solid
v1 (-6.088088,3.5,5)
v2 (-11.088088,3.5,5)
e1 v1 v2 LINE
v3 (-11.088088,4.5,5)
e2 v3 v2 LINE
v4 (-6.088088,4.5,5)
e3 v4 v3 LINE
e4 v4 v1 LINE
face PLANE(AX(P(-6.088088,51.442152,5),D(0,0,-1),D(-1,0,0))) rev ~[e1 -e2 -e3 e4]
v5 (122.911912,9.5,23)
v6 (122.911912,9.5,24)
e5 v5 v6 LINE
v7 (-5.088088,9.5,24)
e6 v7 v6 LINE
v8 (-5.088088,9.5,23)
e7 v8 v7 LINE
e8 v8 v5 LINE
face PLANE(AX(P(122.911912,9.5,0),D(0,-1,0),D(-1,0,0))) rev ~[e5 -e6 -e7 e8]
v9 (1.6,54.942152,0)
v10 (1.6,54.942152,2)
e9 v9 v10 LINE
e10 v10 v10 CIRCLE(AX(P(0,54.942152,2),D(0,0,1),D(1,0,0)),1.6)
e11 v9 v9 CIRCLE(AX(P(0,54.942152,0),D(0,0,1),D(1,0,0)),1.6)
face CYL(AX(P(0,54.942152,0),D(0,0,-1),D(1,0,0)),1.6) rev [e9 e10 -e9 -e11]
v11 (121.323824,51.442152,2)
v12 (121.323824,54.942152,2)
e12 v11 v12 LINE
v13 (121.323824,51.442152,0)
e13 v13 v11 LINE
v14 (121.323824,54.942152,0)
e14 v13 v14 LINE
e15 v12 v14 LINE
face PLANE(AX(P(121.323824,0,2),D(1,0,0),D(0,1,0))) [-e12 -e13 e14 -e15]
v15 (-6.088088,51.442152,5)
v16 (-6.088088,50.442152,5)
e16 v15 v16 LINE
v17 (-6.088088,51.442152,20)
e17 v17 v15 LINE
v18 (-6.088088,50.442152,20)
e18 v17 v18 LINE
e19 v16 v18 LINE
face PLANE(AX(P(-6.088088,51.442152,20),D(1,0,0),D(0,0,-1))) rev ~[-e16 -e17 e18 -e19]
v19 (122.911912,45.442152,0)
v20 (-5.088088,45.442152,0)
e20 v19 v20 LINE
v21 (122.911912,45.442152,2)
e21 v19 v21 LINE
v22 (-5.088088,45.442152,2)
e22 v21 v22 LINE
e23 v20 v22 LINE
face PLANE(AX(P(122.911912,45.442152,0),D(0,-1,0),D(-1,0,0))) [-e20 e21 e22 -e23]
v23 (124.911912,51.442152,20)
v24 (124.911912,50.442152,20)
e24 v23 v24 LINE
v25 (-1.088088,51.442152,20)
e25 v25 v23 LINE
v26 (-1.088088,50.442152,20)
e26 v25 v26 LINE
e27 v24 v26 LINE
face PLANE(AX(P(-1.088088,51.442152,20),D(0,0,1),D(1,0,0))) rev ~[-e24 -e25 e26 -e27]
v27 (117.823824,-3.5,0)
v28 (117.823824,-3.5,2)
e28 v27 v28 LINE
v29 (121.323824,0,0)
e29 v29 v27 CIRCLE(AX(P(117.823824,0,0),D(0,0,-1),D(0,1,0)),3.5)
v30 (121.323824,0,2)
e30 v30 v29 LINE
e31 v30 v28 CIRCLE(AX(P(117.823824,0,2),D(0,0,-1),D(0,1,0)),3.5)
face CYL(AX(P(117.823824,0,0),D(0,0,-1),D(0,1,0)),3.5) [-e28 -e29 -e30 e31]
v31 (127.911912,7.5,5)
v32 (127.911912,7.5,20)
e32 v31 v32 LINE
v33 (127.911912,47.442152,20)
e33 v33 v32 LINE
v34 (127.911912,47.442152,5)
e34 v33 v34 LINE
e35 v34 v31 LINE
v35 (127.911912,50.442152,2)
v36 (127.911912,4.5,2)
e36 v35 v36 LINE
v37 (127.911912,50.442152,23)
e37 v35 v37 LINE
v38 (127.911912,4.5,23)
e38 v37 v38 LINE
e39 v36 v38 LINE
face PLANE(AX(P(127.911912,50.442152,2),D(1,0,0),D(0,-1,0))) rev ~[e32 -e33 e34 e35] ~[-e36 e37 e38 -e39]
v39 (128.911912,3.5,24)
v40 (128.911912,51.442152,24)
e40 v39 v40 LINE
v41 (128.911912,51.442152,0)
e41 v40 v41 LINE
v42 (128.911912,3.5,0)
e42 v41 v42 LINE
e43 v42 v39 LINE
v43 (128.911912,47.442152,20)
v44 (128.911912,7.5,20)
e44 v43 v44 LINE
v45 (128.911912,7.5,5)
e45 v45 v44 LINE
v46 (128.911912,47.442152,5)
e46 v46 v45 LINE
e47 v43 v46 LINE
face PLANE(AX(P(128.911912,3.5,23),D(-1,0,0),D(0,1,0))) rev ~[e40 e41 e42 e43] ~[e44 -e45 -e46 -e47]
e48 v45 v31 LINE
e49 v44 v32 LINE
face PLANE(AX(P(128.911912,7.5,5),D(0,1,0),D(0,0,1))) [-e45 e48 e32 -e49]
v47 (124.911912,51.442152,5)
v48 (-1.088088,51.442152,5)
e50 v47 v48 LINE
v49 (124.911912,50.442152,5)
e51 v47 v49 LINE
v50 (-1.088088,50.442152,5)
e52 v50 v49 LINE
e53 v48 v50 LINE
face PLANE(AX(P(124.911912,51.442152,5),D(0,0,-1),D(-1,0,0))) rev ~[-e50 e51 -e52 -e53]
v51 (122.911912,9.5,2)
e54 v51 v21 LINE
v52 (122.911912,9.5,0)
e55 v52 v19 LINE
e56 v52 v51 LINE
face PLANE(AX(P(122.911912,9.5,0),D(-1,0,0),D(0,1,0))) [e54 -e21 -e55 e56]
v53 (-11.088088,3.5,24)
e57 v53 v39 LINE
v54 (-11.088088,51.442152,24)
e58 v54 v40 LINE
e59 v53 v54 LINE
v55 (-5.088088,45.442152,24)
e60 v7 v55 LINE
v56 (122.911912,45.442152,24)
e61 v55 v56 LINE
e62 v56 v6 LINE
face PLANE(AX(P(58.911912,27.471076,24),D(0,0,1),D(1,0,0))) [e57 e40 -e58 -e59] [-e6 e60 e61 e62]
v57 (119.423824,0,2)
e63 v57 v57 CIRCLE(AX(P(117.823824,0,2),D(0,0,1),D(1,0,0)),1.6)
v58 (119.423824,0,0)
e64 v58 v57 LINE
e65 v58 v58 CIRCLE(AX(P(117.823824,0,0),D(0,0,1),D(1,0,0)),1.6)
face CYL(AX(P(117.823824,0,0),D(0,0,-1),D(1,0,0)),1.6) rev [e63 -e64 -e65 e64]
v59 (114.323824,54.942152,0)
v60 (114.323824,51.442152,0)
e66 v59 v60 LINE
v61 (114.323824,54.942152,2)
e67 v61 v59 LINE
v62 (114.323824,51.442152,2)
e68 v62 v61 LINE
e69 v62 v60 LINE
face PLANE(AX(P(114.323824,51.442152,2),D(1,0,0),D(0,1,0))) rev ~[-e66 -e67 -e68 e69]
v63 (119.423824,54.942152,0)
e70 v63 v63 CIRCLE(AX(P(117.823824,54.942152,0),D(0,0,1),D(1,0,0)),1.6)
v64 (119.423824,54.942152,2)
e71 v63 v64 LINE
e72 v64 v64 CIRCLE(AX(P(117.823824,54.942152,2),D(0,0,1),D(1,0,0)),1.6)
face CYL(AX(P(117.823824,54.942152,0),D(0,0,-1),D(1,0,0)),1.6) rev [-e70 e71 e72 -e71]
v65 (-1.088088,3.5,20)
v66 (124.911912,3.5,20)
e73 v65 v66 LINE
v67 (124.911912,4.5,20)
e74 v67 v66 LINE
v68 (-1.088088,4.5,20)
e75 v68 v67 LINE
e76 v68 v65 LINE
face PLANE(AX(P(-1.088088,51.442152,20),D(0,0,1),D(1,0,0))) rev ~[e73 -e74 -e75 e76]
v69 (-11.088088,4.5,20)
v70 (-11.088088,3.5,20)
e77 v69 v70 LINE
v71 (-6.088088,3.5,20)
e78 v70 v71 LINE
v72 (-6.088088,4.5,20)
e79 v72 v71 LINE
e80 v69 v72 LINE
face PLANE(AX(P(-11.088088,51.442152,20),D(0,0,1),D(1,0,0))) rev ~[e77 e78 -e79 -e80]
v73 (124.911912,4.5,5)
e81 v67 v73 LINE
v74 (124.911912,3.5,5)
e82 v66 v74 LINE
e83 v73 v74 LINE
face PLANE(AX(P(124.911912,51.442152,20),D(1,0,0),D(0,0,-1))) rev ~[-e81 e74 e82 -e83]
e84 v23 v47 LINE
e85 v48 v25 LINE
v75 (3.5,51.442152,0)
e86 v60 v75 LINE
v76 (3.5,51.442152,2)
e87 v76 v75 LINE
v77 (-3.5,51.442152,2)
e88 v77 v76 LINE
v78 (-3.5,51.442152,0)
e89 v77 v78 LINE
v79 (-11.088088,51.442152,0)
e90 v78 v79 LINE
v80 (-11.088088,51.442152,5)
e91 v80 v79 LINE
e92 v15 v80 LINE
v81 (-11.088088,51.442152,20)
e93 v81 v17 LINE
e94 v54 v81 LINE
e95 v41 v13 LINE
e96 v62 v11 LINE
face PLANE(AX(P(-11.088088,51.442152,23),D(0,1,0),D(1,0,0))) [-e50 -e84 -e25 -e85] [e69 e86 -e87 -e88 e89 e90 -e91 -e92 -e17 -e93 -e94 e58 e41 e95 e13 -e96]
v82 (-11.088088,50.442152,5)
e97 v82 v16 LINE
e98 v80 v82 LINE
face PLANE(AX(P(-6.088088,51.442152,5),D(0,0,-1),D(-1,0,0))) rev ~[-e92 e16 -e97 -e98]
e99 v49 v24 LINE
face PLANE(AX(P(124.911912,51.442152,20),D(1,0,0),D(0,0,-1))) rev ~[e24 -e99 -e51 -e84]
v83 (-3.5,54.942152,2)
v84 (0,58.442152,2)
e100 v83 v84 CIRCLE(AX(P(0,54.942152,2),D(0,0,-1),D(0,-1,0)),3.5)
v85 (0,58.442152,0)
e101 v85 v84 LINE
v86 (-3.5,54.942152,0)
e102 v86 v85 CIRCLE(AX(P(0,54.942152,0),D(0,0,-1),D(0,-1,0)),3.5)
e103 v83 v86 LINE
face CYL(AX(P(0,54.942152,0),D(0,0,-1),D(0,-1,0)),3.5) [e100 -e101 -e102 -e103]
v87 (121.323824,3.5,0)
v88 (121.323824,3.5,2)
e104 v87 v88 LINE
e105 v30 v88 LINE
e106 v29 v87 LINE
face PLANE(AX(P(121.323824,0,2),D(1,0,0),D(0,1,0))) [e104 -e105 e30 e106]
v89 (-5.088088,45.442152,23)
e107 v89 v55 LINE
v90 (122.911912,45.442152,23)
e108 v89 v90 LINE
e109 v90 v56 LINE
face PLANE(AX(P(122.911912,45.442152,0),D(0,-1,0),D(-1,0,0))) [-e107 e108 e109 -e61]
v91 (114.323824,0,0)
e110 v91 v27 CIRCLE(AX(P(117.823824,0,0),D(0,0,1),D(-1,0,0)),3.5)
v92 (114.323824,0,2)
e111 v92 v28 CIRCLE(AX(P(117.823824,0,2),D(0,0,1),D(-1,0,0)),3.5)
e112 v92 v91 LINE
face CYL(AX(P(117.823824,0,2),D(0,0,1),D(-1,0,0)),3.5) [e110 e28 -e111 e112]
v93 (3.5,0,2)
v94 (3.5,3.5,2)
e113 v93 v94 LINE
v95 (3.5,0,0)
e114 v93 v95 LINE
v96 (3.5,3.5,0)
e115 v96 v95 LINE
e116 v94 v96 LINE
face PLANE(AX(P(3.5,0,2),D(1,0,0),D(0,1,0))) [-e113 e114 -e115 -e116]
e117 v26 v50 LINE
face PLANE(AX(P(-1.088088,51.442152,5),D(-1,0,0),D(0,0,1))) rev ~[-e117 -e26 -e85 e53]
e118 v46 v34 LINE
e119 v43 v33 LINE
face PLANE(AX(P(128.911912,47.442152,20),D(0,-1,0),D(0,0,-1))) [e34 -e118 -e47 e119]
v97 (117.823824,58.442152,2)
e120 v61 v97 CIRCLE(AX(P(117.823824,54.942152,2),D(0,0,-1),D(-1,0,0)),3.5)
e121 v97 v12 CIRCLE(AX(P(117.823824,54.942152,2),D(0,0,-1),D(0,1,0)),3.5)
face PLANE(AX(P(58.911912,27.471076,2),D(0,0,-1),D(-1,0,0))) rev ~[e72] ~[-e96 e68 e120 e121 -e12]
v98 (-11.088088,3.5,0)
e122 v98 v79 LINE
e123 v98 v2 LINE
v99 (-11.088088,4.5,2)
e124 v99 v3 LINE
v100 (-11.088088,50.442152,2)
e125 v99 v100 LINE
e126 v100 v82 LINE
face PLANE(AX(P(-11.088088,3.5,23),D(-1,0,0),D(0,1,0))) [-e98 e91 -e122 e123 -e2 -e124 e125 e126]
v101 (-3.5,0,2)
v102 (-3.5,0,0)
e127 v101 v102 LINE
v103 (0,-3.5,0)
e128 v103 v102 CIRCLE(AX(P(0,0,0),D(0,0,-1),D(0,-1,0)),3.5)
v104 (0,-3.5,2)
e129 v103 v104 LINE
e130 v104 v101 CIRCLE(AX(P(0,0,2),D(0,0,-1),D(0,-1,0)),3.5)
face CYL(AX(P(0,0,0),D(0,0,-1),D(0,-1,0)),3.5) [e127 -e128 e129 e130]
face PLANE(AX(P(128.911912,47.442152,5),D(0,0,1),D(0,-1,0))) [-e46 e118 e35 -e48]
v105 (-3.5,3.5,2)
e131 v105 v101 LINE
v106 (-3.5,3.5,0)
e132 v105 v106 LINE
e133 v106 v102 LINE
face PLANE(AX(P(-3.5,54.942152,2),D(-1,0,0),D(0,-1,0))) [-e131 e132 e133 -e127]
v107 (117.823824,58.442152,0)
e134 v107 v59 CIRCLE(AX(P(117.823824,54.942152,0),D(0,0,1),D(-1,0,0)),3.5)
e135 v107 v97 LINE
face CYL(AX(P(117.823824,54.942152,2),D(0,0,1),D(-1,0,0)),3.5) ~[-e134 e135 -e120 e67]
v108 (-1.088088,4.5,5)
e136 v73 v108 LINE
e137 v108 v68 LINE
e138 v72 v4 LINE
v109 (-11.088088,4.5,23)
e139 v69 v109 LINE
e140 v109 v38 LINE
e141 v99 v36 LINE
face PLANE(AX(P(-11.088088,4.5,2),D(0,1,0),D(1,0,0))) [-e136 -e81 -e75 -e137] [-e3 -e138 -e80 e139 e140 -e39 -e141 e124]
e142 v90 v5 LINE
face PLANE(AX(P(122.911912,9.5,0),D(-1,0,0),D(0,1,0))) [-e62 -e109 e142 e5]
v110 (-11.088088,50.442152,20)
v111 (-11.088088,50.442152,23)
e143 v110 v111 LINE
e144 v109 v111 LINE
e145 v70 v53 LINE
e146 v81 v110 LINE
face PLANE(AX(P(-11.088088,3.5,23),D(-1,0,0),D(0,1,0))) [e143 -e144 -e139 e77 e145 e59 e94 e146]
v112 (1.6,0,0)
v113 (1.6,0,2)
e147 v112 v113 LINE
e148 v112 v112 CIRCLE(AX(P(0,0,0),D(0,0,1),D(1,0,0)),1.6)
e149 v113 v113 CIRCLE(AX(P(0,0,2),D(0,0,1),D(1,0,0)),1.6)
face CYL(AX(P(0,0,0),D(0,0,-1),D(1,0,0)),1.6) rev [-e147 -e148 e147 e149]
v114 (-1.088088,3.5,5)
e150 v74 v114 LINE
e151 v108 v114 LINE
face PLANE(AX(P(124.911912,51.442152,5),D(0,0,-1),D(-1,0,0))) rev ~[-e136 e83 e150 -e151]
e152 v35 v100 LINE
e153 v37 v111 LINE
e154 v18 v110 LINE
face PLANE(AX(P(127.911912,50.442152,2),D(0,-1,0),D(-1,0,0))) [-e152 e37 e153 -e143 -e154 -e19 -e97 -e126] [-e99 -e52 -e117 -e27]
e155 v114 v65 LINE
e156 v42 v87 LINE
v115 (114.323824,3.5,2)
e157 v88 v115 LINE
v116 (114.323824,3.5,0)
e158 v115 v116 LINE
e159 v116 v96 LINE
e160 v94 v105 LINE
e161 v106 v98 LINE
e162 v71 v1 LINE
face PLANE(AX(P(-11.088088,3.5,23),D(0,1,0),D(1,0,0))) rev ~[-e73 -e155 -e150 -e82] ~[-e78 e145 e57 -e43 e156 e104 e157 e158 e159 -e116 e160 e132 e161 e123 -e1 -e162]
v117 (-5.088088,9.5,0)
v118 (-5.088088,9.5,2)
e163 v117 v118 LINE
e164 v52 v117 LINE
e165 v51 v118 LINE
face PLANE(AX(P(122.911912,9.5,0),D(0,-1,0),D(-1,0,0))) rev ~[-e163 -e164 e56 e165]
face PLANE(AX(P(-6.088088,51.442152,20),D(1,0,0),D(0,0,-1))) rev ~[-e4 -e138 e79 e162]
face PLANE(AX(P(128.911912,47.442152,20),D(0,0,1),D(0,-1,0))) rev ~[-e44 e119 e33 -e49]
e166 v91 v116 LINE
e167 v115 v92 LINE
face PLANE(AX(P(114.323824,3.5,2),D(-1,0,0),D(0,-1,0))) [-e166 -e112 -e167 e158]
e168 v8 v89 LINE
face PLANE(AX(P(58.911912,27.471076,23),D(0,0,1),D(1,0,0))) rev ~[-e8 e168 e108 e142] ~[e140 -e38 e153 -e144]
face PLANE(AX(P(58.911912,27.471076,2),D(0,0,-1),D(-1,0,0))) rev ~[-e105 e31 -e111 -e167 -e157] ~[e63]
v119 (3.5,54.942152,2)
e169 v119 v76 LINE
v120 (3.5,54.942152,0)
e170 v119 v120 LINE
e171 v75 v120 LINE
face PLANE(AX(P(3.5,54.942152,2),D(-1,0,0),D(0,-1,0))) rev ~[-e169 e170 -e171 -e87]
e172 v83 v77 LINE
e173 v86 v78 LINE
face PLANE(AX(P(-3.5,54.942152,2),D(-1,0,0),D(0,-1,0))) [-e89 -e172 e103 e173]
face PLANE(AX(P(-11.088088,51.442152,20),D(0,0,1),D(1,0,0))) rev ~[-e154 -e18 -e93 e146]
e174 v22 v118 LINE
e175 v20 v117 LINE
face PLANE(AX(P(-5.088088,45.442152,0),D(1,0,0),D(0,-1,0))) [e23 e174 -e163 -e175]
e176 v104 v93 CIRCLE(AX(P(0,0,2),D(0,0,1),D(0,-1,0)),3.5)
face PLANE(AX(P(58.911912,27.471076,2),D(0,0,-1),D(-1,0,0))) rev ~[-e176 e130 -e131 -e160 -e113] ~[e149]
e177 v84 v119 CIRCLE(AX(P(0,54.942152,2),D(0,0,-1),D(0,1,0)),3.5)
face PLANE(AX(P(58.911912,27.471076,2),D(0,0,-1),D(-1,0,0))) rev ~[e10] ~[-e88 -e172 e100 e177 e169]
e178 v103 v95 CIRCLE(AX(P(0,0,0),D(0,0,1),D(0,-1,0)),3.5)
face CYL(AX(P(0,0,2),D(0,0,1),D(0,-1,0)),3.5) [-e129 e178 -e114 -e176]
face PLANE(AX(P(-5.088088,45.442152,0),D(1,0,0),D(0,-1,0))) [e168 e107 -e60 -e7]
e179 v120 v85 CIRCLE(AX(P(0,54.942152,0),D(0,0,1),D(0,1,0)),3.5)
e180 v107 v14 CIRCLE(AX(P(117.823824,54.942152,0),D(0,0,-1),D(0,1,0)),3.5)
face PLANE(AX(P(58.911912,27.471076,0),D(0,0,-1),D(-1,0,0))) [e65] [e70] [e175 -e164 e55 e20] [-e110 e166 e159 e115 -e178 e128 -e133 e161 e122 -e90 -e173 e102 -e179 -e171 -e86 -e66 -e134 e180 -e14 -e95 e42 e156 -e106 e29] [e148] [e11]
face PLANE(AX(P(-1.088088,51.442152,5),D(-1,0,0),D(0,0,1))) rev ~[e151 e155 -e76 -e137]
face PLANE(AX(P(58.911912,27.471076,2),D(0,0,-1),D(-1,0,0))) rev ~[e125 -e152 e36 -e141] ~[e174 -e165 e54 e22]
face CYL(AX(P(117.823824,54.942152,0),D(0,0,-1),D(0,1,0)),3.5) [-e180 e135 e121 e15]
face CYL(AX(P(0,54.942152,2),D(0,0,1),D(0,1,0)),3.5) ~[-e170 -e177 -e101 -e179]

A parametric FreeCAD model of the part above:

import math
import FreeCAD as App
import Part
import Sketcher
from FreeCAD import Vector


def edges_at(feature, points):
    """Names of the edges that pass closest to the given points."""
    edges = feature.Shape.Edges
    near = lambda p: min(range(len(edges)), key=lambda i: edges[i].distToShape(Part.Vertex(*p))[0])
    return sorted({f"Edge{near(p) + 1}" for p in points})


def add_polygon(sketch, points):
    """Adds a closed chain of lines whose ends are joined by coincident constraints."""
    first, n = sketch.GeometryCount, len(points)
    for a, b in zip(points, points[1:] + points[:1]):
        sketch.addGeometry(Part.LineSegment(App.Vector(*a, 0), App.Vector(*b, 0)), False)
    for i in range(n):
        sketch.addConstraint(Sketcher.Constraint("Coincident", first + i, 2, first + (i + 1) % n, 1))

doc = App.newDocument("Part")
body = doc.addObject("PartDesign::Body", "Body")

sketch1 = body.newObject("Sketcher::SketchObject", "Sketch")
sketch1.AttachmentSupport = (doc.getObject("XY_Plane"), [""])
sketch1.MapMode = "FlatFace"
sketch1.addGeometry(Part.LineSegment(Vector(37.911912, 3.5, 0), Vector(0, 3.5, 0)), False)
sketch1.addGeometry(Part.ArcOfCircle(Part.Circle(Vector(0, 0, 0), Vector(0, 0, 1), 3.5), math.radians(90), math.radians(270)), False)
sketch1.addGeometry(Part.LineSegment(Vector(0, -3.5, 0), Vector(45.911912, -3.5, 0)), False)
sketch1.addGeometry(Part.LineSegment(Vector(45.911912, -3.5, 0), Vector(45.911912, 5.971076, 0)), False)
sketch1.addGeometry(Part.LineSegment(Vector(45.911912, 5.971076, 0), Vector(71.911912, 5.971076, 0)), False)
sketch1.addGeometry(Part.LineSegment(Vector(71.911912, 5.971076, 0), Vector(71.911912, -3.5, 0)), False)
sketch1.addGeometry(Part.LineSegment(Vector(71.911912, -3.5, 0), Vector(117.823824, -3.5, 0)), False)
sketch1.addGeometry(Part.ArcOfCircle(Part.Circle(Vector(117.823824, 0, 0), Vector(0, 0, 1), 3.5), math.radians(-90), math.radians(90)), False)
sketch1.addGeometry(Part.LineSegment(Vector(117.823824, 3.5, 0), Vector(79.911912, 3.5, 0)), False)
sketch1.addGeometry(Part.LineSegment(Vector(79.911912, 3.5, 0), Vector(79.911912, 51.442152, 0)), False)
sketch1.addGeometry(Part.LineSegment(Vector(79.911912, 51.442152, 0), Vector(117.823824, 51.442152, 0)), False)
sketch1.addGeometry(Part.ArcOfCircle(Part.Circle(Vector(117.823824, 54.942152, 0), Vector(0, 0, 1), 3.5), math.radians(-90), math.radians(90)), False)
sketch1.addGeometry(Part.LineSegment(Vector(117.823824, 58.442152, 0), Vector(71.911912, 58.442152, 0)), False)
sketch1.addGeometry(Part.LineSegment(Vector(71.911912, 58.442152, 0), Vector(71.911912, 48.971076, 0)), False)
sketch1.addGeometry(Part.LineSegment(Vector(71.911912, 48.971076, 0), Vector(45.911912, 48.971076, 0)), False)
sketch1.addGeometry(Part.LineSegment(Vector(45.911912, 48.971076, 0), Vector(45.911912, 58.442152, 0)), False)
sketch1.addGeometry(Part.LineSegment(Vector(45.911912, 58.442152, 0), Vector(0, 58.442152, 0)), False)
sketch1.addGeometry(Part.ArcOfCircle(Part.Circle(Vector(0, 54.942152, 0), Vector(0, 0, 1), 3.5), math.radians(90), math.radians(270)), False)
sketch1.addGeometry(Part.LineSegment(Vector(0, 51.442152, 0), Vector(37.911912, 51.442152, 0)), False)
sketch1.addGeometry(Part.LineSegment(Vector(37.911912, 51.442152, 0), Vector(37.911912, 3.5, 0)), False)
sketch1.addGeometry(Part.Circle(Vector(117.823824, 0, 0), Vector(0, 0, 1), 1.6), False)
sketch1.addGeometry(Part.Circle(Vector(66.911912, 9.971076, 0), Vector(0, 0, 1), 2.1), False)
sketch1.addGeometry(Part.Circle(Vector(50.911912, 9.971076, 0), Vector(0, 0, 1), 2.1), False)
sketch1.addGeometry(Part.Circle(Vector(0, 0, 0), Vector(0, 0, 1), 1.6), False)
add_polygon(sketch1, [(71.911912, 40.971076), (71.911912, 13.971076), (45.911912, 13.971076), (45.911912, 40.971076)])
sketch1.addGeometry(Part.Circle(Vector(117.823824, 54.942152, 0), Vector(0, 0, 1), 1.6), False)
sketch1.addGeometry(Part.Circle(Vector(66.911912, 44.971076, 0), Vector(0, 0, 1), 2.1), False)
sketch1.addGeometry(Part.Circle(Vector(50.911912, 44.971076, 0), Vector(0, 0, 1), 2.1), False)
sketch1.addGeometry(Part.Circle(Vector(0, 54.942152, 0), Vector(0, 0, 1), 1.6), False)
sketch1.addConstraint([
    Sketcher.Constraint("Tangent", 0, 2, 1, 1),
    Sketcher.Constraint("Tangent", 1, 2, 2, 1),
    Sketcher.Constraint("Coincident", 2, 2, 3, 1),
    Sketcher.Constraint("Coincident", 3, 2, 4, 1),
    Sketcher.Constraint("Coincident", 4, 2, 5, 1),
    Sketcher.Constraint("Coincident", 5, 2, 6, 1),
    Sketcher.Constraint("Tangent", 6, 2, 7, 1),
    Sketcher.Constraint("Tangent", 7, 2, 8, 1),
    Sketcher.Constraint("Coincident", 8, 2, 9, 1),
    Sketcher.Constraint("Coincident", 9, 2, 10, 1),
    Sketcher.Constraint("Tangent", 10, 2, 11, 1),
    Sketcher.Constraint("Tangent", 11, 2, 12, 1),
    Sketcher.Constraint("Coincident", 12, 2, 13, 1),
    Sketcher.Constraint("Coincident", 13, 2, 14, 1),
    Sketcher.Constraint("Coincident", 14, 2, 15, 1),
    Sketcher.Constraint("Coincident", 15, 2, 16, 1),
    Sketcher.Constraint("Tangent", 16, 2, 17, 1),
    Sketcher.Constraint("Tangent", 17, 2, 18, 1),
    Sketcher.Constraint("Coincident", 18, 2, 19, 1),
    Sketcher.Constraint("Coincident", 19, 2, 0, 1),
    Sketcher.Constraint("Horizontal", 0),
    Sketcher.Constraint("Horizontal", 2),
    Sketcher.Constraint("Vertical", 3),
    Sketcher.Constraint("Horizontal", 4),
    Sketcher.Constraint("Vertical", 5),
    Sketcher.Constraint("Horizontal", 6),
    Sketcher.Constraint("Horizontal", 8),
    Sketcher.Constraint("Vertical", 9),
    Sketcher.Constraint("Horizontal", 10),
    Sketcher.Constraint("Horizontal", 12),
    Sketcher.Constraint("Vertical", 13),
    Sketcher.Constraint("Horizontal", 14),
    Sketcher.Constraint("Vertical", 15),
    Sketcher.Constraint("Horizontal", 16),
    Sketcher.Constraint("Horizontal", 18),
    Sketcher.Constraint("Vertical", 19),
    Sketcher.Constraint("Vertical", 24),
    Sketcher.Constraint("Horizontal", 25),
    Sketcher.Constraint("Vertical", 26),
    Sketcher.Constraint("Horizontal", 27),
    Sketcher.Constraint("Coincident", 1, 3, -1, 1),
    Sketcher.Constraint("Coincident", 23, 3, -1, 1),
    Sketcher.Constraint("Coincident", 20, 3, 7, 3),
    Sketcher.Constraint("Coincident", 28, 3, 11, 3),
    Sketcher.Constraint("Coincident", 31, 3, 17, 3),
    Sketcher.Constraint("Equal", 1, 7),
    Sketcher.Constraint("Equal", 7, 11),
    Sketcher.Constraint("Equal", 11, 17),
    Sketcher.Constraint("Equal", 21, 22),
    Sketcher.Constraint("Equal", 20, 23),
    Sketcher.Constraint("Equal", 23, 28),
    Sketcher.Constraint("Equal", 22, 29),
    Sketcher.Constraint("Equal", 29, 30),
    Sketcher.Constraint("Equal", 28, 31),
    Sketcher.Constraint("PointOnObject", 7, 3, -1),
    Sketcher.Constraint("PointOnObject", 17, 3, -2),
    Sketcher.Constraint("Horizontal", 11, 3, 17, 3),
    Sketcher.Constraint("Horizontal", 21, 3, 22, 3),
    Sketcher.Constraint("Horizontal", 29, 3, 30, 3),
    Sketcher.Constraint("Vertical", 7, 3, 11, 3),
    Sketcher.Constraint("Vertical", 21, 3, 29, 3),
    Sketcher.Constraint("Vertical", 22, 3, 30, 3),
    Sketcher.Constraint("Vertical", 5, 2, 12, 2),
    Sketcher.Constraint("Vertical", 3, 2, 14, 2),
    Sketcher.Constraint("Vertical", 13, 2, 24, 2),
    Sketcher.Constraint("Vertical", 15, 2, 25, 2),
    Sketcher.Constraint("Equal", 2, 6),
    Sketcher.Constraint("Equal", 0, 8),
    Sketcher.Constraint("Equal", 5, 13),
    Sketcher.Constraint("Diameter", 20, 3.2),
    Sketcher.Constraint("Diameter", 21, 4.2),
    Sketcher.Constraint("Radius", 1, 3.5),
    Sketcher.Constraint("DistanceX", 4, 1, 4, 2, 26.0),
    Sketcher.Constraint("DistanceY", 24, 2, 24, 1, 27.0),
    Sketcher.Constraint("DistanceX", 22, 3, 21, 3, 16.0),
    Sketcher.Constraint("DistanceY", 21, 3, 29, 3, 35.0),
    Sketcher.Constraint("DistanceX", 2, 2, 22, 3, 5.0),
    Sketcher.Constraint("DistanceY", 3, 2, 22, 3, 4.0),
    Sketcher.Constraint("DistanceX", 4, 2, 8, 2, 8.0),
    Sketcher.Constraint("DistanceY", 29, 3, 13, 2, 4.0),
    Sketcher.Constraint("DistanceY", 21, 3, 24, 2, 4.0),
    Sketcher.Constraint("DistanceY", 9, 1, 9, 2, 47.942152),
    Sketcher.Constraint("DistanceX", 0, 2, 0, 1, 37.911912),
])
pad1 = body.newObject("PartDesign::Pad", "Pad")
pad1.Profile = sketch1
pad1.Length = 2

sketch2 = body.newObject("Sketcher::SketchObject", "Sketch001")
sketch2.AttachmentSupport = (doc.getObject("XY_Plane"), [""])
sketch2.MapMode = "FlatFace"
sketch2.AttachmentOffset = App.Placement(Vector(0, 0, 2), App.Rotation())
add_polygon(sketch2, [(99.911912, 13.971076), (71.911912, 13.971076), (71.911912, 5.971076), (91.911912, 5.971076), (91.911912, 3.5), (99.911912, 3.5)])
add_polygon(sketch2, [(99.911912, 51.442152), (91.911912, 51.442152), (91.911912, 48.971076), (71.911912, 48.971076), (71.911912, 40.971076), (99.911912, 40.971076)])
add_polygon(sketch2, [(17.911912, 40.971076), (45.911912, 40.971076), (45.911912, 48.971076), (25.911912, 48.971076), (25.911912, 51.442152), (17.911912, 51.442152)])
add_polygon(sketch2, [(17.911912, 3.5), (25.911912, 3.5), (25.911912, 5.971076), (45.911912, 5.971076), (45.911912, 13.971076), (17.911912, 13.971076)])
sketch2.addConstraint([
    Sketcher.Constraint("Horizontal", 0),
    Sketcher.Constraint("Vertical", 1),
    Sketcher.Constraint("Horizontal", 2),
    Sketcher.Constraint("Vertical", 3),
    Sketcher.Constraint("Horizontal", 4),
    Sketcher.Constraint("Vertical", 5),
    Sketcher.Constraint("Horizontal", 6),
    Sketcher.Constraint("Vertical", 7),
    Sketcher.Constraint("Horizontal", 8),
    Sketcher.Constraint("Vertical", 9),
    Sketcher.Constraint("Horizontal", 10),
    Sketcher.Constraint("Vertical", 11),
    Sketcher.Constraint("Horizontal", 12),
    Sketcher.Constraint("Vertical", 13),
    Sketcher.Constraint("Horizontal", 14),
    Sketcher.Constraint("Vertical", 15),
    Sketcher.Constraint("Horizontal", 16),
    Sketcher.Constraint("Vertical", 17),
    Sketcher.Constraint("Horizontal", 18),
    Sketcher.Constraint("Vertical", 19),
    Sketcher.Constraint("Horizontal", 20),
    Sketcher.Constraint("Vertical", 21),
    Sketcher.Constraint("Horizontal", 22),
    Sketcher.Constraint("Vertical", 23),
    Sketcher.Constraint("Horizontal", 10, 2, 12, 2),
    Sketcher.Constraint("Horizontal", 8, 2, 13, 2),
    Sketcher.Constraint("Horizontal", 11, 2, 15, 2),
    Sketcher.Constraint("Horizontal", 4, 2, 18, 2),
    Sketcher.Constraint("Horizontal", 2, 2, 19, 2),
    Sketcher.Constraint("Horizontal", 5, 2, 21, 2),
    Sketcher.Constraint("Vertical", 3, 2, 6, 2),
    Sketcher.Constraint("Vertical", 1, 2, 8, 2),
    Sketcher.Constraint("Vertical", 5, 2, 10, 2),
    Sketcher.Constraint("Vertical", 15, 2, 18, 2),
    Sketcher.Constraint("Vertical", 13, 2, 20, 2),
    Sketcher.Constraint("Vertical", 17, 2, 22, 2),
    Sketcher.Constraint("Equal", 10, 12),
    Sketcher.Constraint("Equal", 8, 14),
    Sketcher.Constraint("Equal", 18, 1),
    Sketcher.Constraint("Equal", 3, 7),
    Sketcher.Constraint("Equal", 1, 9),
    Sketcher.Constraint("DistanceX", 0, 2, 0, 1, 28.0),
    Sketcher.Constraint("DistanceX", 2, 1, 2, 2, 20.0),
    Sketcher.Constraint("DistanceY", 5, 2, 7, 2, 35.0),
    Sketcher.Constraint("DistanceX", 12, 2, 9, 2, 26.0),
    Sketcher.Constraint("DistanceY", -1, 1, 3, 2, 3.5),
    Sketcher.Constraint("DistanceY", 3, 2, 3, 1, 2.471076),
    Sketcher.Constraint("DistanceX", -1, 1, 0, 2, 71.911912),
])
pad2 = body.newObject("PartDesign::Pad", "Pad001")
pad2.Profile = sketch2
pad2.Length = 2
pad2.Reversed = True

sketch3 = body.newObject("Sketcher::SketchObject", "Sketch002")
sketch3.AttachmentSupport = (doc.getObject("XY_Plane"), [""])
sketch3.MapMode = "FlatFace"
sketch3.AttachmentOffset = App.Placement(Vector(0, 0, 2), App.Rotation())
add_polygon(sketch3, [(25.911912, 65.311187), (25.911912, 48.971076), (91.911912, 48.971076), (91.911912, 65.311187)])
add_polygon(sketch3, [(25.911912, 5.971076), (25.911912, -18.770506), (91.911912, -18.770506), (91.911912, 5.971076)])
sketch3.addConstraint([
    Sketcher.Constraint("Vertical", 0),
    Sketcher.Constraint("Horizontal", 1),
    Sketcher.Constraint("Vertical", 2),
    Sketcher.Constraint("Horizontal", 3),
    Sketcher.Constraint("Vertical", 4),
    Sketcher.Constraint("Horizontal", 5),
    Sketcher.Constraint("Vertical", 6),
    Sketcher.Constraint("Horizontal", 7),
    Sketcher.Constraint("Vertical", 3, 2, 4, 2),
    Sketcher.Constraint("Vertical", 2, 2, 5, 2),
    Sketcher.Constraint("DistanceX", 1, 1, 1, 2, 66.0),
    Sketcher.Constraint("DistanceY", 6, 2, 1, 2, 43.0),
    Sketcher.Constraint("DistanceY", 0, 2, 0, 1, 16.340111),
    Sketcher.Constraint("DistanceY", 4, 2, 4, 1, 24.741582),
    Sketcher.Constraint("DistanceX", -1, 1, 0, 2, 25.911912),
    Sketcher.Constraint("DistanceY", -1, 1, 0, 2, 48.971076),
])
pocket1 = body.newObject("PartDesign::Pocket", "Pocket")
pocket1.Profile = sketch3
pocket1.Length = 14.5
doc.recompute()

fillet = body.newObject("PartDesign::Fillet", "Fillet")
fillet.Base = (pocket1, edges_at(pocket1, [
    (99.912, 13.971, 1),
    (99.912, 3.5, 1),
    (91.912, 5.971, 1),
    (91.912, 48.971, 1),
    (99.912, 51.442, 1),
    (99.912, 40.971, 1),
    (17.912, 40.971, 1),
    (17.912, 51.442, 1),
    (25.912, 48.971, 1),
    (25.912, 5.971, 1),
    (17.912, 3.5, 1),
    (17.912, 13.971, 1),
    (91.912, 58.442, 1),
    (25.912, 58.442, 1),
    (91.912, -3.5, 1),
    (25.912, -3.5, 1),
]))
fillet.Radius = 4

sketch4 = body.newObject("Sketcher::SketchObject", "Sketch003")
sketch4.AttachmentSupport = (doc.getObject("XY_Plane"), [""])
sketch4.MapMode = "FlatFace"
sketch4.AttachmentOffset = App.Placement(Vector(0, 0, 2), App.Rotation())
add_polygon(sketch4, [(45.911912, 40.971076), (45.911912, 13.971076), (71.911912, 13.971076), (71.911912, 40.971076)])
sketch4.addGeometry(Part.Circle(Vector(58.911912, 27.471076, 0), Vector(0, 0, 1), 6), False)
sketch4.addConstraint([
    Sketcher.Constraint("Vertical", 0),
    Sketcher.Constraint("Horizontal", 1),
    Sketcher.Constraint("Vertical", 2),
    Sketcher.Constraint("Horizontal", 3),
    Sketcher.Constraint("Diameter", 4, 12.0),
    Sketcher.Constraint("DistanceX", 1, 1, 1, 2, 26.0),
    Sketcher.Constraint("DistanceY", 0, 2, 0, 1, 27.0),
    Sketcher.Constraint("DistanceX", 0, 2, 4, 3, 13.0),
    Sketcher.Constraint("DistanceY", 0, 2, 4, 3, 13.5),
    Sketcher.Constraint("DistanceX", -1, 1, 4, 3, 58.911912),
    Sketcher.Constraint("DistanceY", -1, 1, 4, 3, 27.471076),
])
pad3 = body.newObject("PartDesign::Pad", "Pad002")
pad3.Profile = sketch4
pad3.Length = 2
pad3.Reversed = True

sketch5 = body.newObject("Sketcher::SketchObject", "Sketch004")
sketch5.AttachmentSupport = (doc.getObject("XY_Plane"), [""])
sketch5.MapMode = "FlatFace"
sketch5.AttachmentOffset = App.Placement(Vector(0, 0, 2), App.Rotation())
add_polygon(sketch5, [(37.911912, 40.971076), (37.911912, 13.971076), (42.911912, 13.971076), (42.911912, 40.971076)])
add_polygon(sketch5, [(74.911912, 40.971076), (74.911912, 13.971076), (79.911912, 13.971076), (79.911912, 40.971076)])
sketch5.addConstraint([
    Sketcher.Constraint("Vertical", 0),
    Sketcher.Constraint("Horizontal", 1),
    Sketcher.Constraint("Vertical", 2),
    Sketcher.Constraint("Horizontal", 3),
    Sketcher.Constraint("Vertical", 4),
    Sketcher.Constraint("Horizontal", 5),
    Sketcher.Constraint("Vertical", 6),
    Sketcher.Constraint("Horizontal", 7),
    Sketcher.Constraint("Horizontal", 1, 2, 4, 2),
    Sketcher.Constraint("Horizontal", 3, 2, 6, 2),
    Sketcher.Constraint("Equal", 3, 5),
    Sketcher.Constraint("DistanceX", 1, 1, 1, 2, 5.0),
    Sketcher.Constraint("DistanceY", 0, 2, 0, 1, 27.0),
    Sketcher.Constraint("DistanceX", 1, 2, 4, 2, 32.0),
    Sketcher.Constraint("DistanceX", -1, 1, 0, 2, 37.911912),
    Sketcher.Constraint("DistanceY", -1, 1, 0, 2, 13.971076),
])
pocket2 = body.newObject("PartDesign::Pocket", "Pocket001")
pocket2.Profile = sketch5
pocket2.Length = 14.5

sketch6 = body.newObject("Sketcher::SketchObject", "Sketch005")
sketch6.AttachmentSupport = (doc.getObject("XY_Plane"), [""])
sketch6.MapMode = "FlatFace"
sketch6.AttachmentOffset = App.Placement(Vector(0, 0, 2), App.Rotation())
sketch6.addGeometry(Part.LineSegment(Vector(-3.5, 54.942152, 0), Vector(-3.5, 0, 0)), False)
sketch6.addGeometry(Part.ArcOfCircle(Part.Circle(Vector(0, 0, 0), Vector(0, 0, 1), 3.5), math.radians(-180), math.radians(-90)), False)
sketch6.addGeometry(Part.LineSegment(Vector(0, -3.5, 0), Vector(117.823824, -3.5, 0)), False)
sketch6.addGeometry(Part.ArcOfCircle(Part.Circle(Vector(117.823824, 0, 0), Vector(0, 0, 1), 3.5), math.radians(-90), math.radians(0)), False)
sketch6.addGeometry(Part.LineSegment(Vector(121.323824, 0, 0), Vector(121.323824, 54.942152, 0)), False)
sketch6.addGeometry(Part.ArcOfCircle(Part.Circle(Vector(117.823824, 54.942152, 0), Vector(0, 0, 1), 3.5), math.radians(0), math.radians(90)), False)
sketch6.addGeometry(Part.LineSegment(Vector(117.823824, 58.442152, 0), Vector(0, 58.442152, 0)), False)
sketch6.addGeometry(Part.ArcOfCircle(Part.Circle(Vector(0, 54.942152, 0), Vector(0, 0, 1), 3.5), math.radians(90), math.radians(180)), False)
sketch6.addGeometry(Part.Circle(Vector(0, 0, 0), Vector(0, 0, 1), 1.6), False)
sketch6.addGeometry(Part.Circle(Vector(117.823824, 0, 0), Vector(0, 0, 1), 1.6), False)
sketch6.addGeometry(Part.Circle(Vector(0, 54.942152, 0), Vector(0, 0, 1), 1.6), False)
add_polygon(sketch6, [(114.323824, 3.5), (3.5, 3.5), (3.5, 51.442152), (114.323824, 51.442152)])
sketch6.addGeometry(Part.Circle(Vector(117.823824, 54.942152, 0), Vector(0, 0, 1), 1.6), False)
sketch6.addConstraint([
    Sketcher.Constraint("Tangent", 0, 2, 1, 1),
    Sketcher.Constraint("Tangent", 1, 2, 2, 1),
    Sketcher.Constraint("Tangent", 2, 2, 3, 1),
    Sketcher.Constraint("Tangent", 3, 2, 4, 1),
    Sketcher.Constraint("Tangent", 4, 2, 5, 1),
    Sketcher.Constraint("Tangent", 5, 2, 6, 1),
    Sketcher.Constraint("Tangent", 6, 2, 7, 1),
    Sketcher.Constraint("Tangent", 7, 2, 0, 1),
    Sketcher.Constraint("Vertical", 0),
    Sketcher.Constraint("Horizontal", 2),
    Sketcher.Constraint("Vertical", 4),
    Sketcher.Constraint("Horizontal", 6),
    Sketcher.Constraint("Horizontal", 11),
    Sketcher.Constraint("Vertical", 12),
    Sketcher.Constraint("Horizontal", 13),
    Sketcher.Constraint("Vertical", 14),
    Sketcher.Constraint("Coincident", 1, 3, -1, 1),
    Sketcher.Constraint("Coincident", 8, 3, -1, 1),
    Sketcher.Constraint("Coincident", 9, 3, 3, 3),
    Sketcher.Constraint("Coincident", 10, 3, 7, 3),
    Sketcher.Constraint("Coincident", 15, 3, 5, 3),
    Sketcher.Constraint("Equal", 1, 3),
    Sketcher.Constraint("Equal", 3, 5),
    Sketcher.Constraint("Equal", 5, 7),
    Sketcher.Constraint("Equal", 8, 9),
    Sketcher.Constraint("Equal", 9, 10),
    Sketcher.Constraint("Equal", 10, 15),
    Sketcher.Constraint("Diameter", 8, 3.2),
    Sketcher.Constraint("Radius", 1, 3.5),
    Sketcher.Constraint("DistanceX", 0, 2, 11, 2, 7.0),
    Sketcher.Constraint("DistanceY", 1, 2, 11, 2, 7.0),
    Sketcher.Constraint("DistanceY", 12, 2, 6, 2, 7.0),
    Sketcher.Constraint("DistanceX", 13, 2, 4, 2, 7.0),
    Sketcher.Constraint("DistanceY", 0, 2, 0, 1, 54.942152),
    Sketcher.Constraint("DistanceX", 2, 1, 2, 2, 117.823824),
])
pad4 = body.newObject("PartDesign::Pad", "Pad003")
pad4.Profile = sketch6
pad4.Length = 2
pad4.Reversed = True

sketch7 = body.newObject("Sketcher::SketchObject", "Sketch006")
sketch7.AttachmentSupport = (doc.getObject("XY_Plane"), [""])
sketch7.MapMode = "FlatFace"
sketch7.AttachmentOffset = App.Placement(Vector(0, 0, 2), App.Rotation())
add_polygon(sketch7, [(3.5, 51.442152), (3.5, 3.5), (114.323824, 3.5), (114.323824, 51.442152)])
sketch7.addConstraint([
    Sketcher.Constraint("Vertical", 0),
    Sketcher.Constraint("Horizontal", 1),
    Sketcher.Constraint("Vertical", 2),
    Sketcher.Constraint("Horizontal", 3),
    Sketcher.Constraint("DistanceX", -1, 1, 0, 2, 3.5),
    Sketcher.Constraint("DistanceY", -1, 1, 0, 2, 3.5),
    Sketcher.Constraint("DistanceY", 0, 2, 0, 1, 47.942152),
    Sketcher.Constraint("DistanceX", 1, 1, 1, 2, 110.823824),
])
pocket3 = body.newObject("PartDesign::Pocket", "Pocket002")
pocket3.Profile = sketch7
pocket3.Length = 10

sketch8 = body.newObject("Sketcher::SketchObject", "Sketch007")
sketch8.AttachmentSupport = (doc.getObject("XY_Plane"), [""])
sketch8.MapMode = "FlatFace"
sketch8.AttachmentOffset = App.Placement(Vector(0, 0, 2), App.Rotation())
add_polygon(sketch8, [(128.911912, 51.442152), (-11.088088, 51.442152), (-11.088088, 3.5), (128.911912, 3.5)])
sketch8.addConstraint([
    Sketcher.Constraint("Horizontal", 0),
    Sketcher.Constraint("Vertical", 1),
    Sketcher.Constraint("Horizontal", 2),
    Sketcher.Constraint("Vertical", 3),
    Sketcher.Constraint("DistanceX", 0, 2, 0, 1, 140.0),
    Sketcher.Constraint("DistanceY", -1, 1, 1, 2, 3.5),
    Sketcher.Constraint("DistanceY", 1, 2, 1, 1, 47.942152),
    Sketcher.Constraint("DistanceX", 0, 2, -1, 1, 11.088088),
])
pad5 = body.newObject("PartDesign::Pad", "Pad004")
pad5.Profile = sketch8
pad5.Length = 2
pad5.Reversed = True

sketch9 = body.newObject("Sketcher::SketchObject", "Sketch008")
sketch9.AttachmentSupport = (doc.getObject("XY_Plane"), [""])
sketch9.MapMode = "FlatFace"
sketch9.AttachmentOffset = App.Placement(Vector(0, 0, 2), App.Rotation())
add_polygon(sketch9, [(128.911912, 51.442152), (-11.088088, 51.442152), (-11.088088, 50.442152), (127.911912, 50.442152), (127.911912, 4.5), (-11.088088, 4.5), (-11.088088, 3.5), (128.911912, 3.5)])
sketch9.addConstraint([
    Sketcher.Constraint("Horizontal", 0),
    Sketcher.Constraint("Vertical", 1),
    Sketcher.Constraint("Horizontal", 2),
    Sketcher.Constraint("Vertical", 3),
    Sketcher.Constraint("Horizontal", 4),
    Sketcher.Constraint("Vertical", 5),
    Sketcher.Constraint("Horizontal", 6),
    Sketcher.Constraint("Vertical", 7),
    Sketcher.Constraint("Vertical", 1, 2, 4, 2),
    Sketcher.Constraint("Equal", 1, 5),
    Sketcher.Constraint("DistanceX", 0, 2, 0, 1, 140.0),
    Sketcher.Constraint("DistanceX", 2, 1, 2, 2, 139.0),
    Sketcher.Constraint("DistanceY", 1, 2, 1, 1, 1.0),
    Sketcher.Constraint("DistanceY", -1, 1, 3, 2, 4.5),
    Sketcher.Constraint("DistanceY", 3, 2, 3, 1, 45.942152),
    Sketcher.Constraint("DistanceX", 0, 2, -1, 1, 11.088088),
])
pad6 = body.newObject("PartDesign::Pad", "Pad005")
pad6.Profile = sketch9
pad6.Length = 21

sketch10 = body.newObject("Sketcher::SketchObject", "Sketch009")
sketch10.AttachmentSupport = (doc.getObject("XY_Plane"), [""])
sketch10.MapMode = "FlatFace"
sketch10.AttachmentOffset = App.Placement(Vector(0, 0, 23), App.Rotation())
add_polygon(sketch10, [(-11.088088, 51.442152), (-11.088088, 3.5), (128.911912, 3.5), (128.911912, 51.442152)])
sketch10.addConstraint([
    Sketcher.Constraint("Vertical", 0),
    Sketcher.Constraint("Horizontal", 1),
    Sketcher.Constraint("Vertical", 2),
    Sketcher.Constraint("Horizontal", 3),
    Sketcher.Constraint("DistanceX", 1, 1, 1, 2, 140.0),
    Sketcher.Constraint("DistanceY", -1, 1, 0, 2, 3.5),
    Sketcher.Constraint("DistanceY", 0, 2, 0, 1, 47.942152),
    Sketcher.Constraint("DistanceX", 0, 2, -1, 1, 11.088088),
])
pad7 = body.newObject("PartDesign::Pad", "Pad006")
pad7.Profile = sketch10
pad7.Length = 1

sketch11 = body.newObject("Sketcher::SketchObject", "Sketch010")
sketch11.AttachmentSupport = (doc.getObject("XY_Plane"), [""])
sketch11.MapMode = "FlatFace"
sketch11.AttachmentOffset = App.Placement(Vector(0, 0, 2), App.Rotation())
sketch11.addGeometry([
    Part.LineSegment(Vector(3.5, 3.5, 0), Vector(3.5, 0, 0)),
    Part.ArcOfCircle(Part.Circle(Vector(0, 0, 0), Vector(0, 0, 1), 3.5), math.radians(-90), math.radians(0)),
    Part.LineSegment(Vector(0, -3.5, 0), Vector(117.823824, -3.5, 0)),
    Part.ArcOfCircle(Part.Circle(Vector(117.823824, 0, 0), Vector(0, 0, 1), 3.5), math.radians(-180), math.radians(-90)),
    Part.LineSegment(Vector(114.323824, 0, 0), Vector(114.323824, 3.5, 0)),
    Part.LineSegment(Vector(114.323824, 3.5, 0), Vector(3.5, 3.5, 0)),
    Part.LineSegment(Vector(3.5, 54.942152, 0), Vector(3.5, 51.442152, 0)),
    Part.LineSegment(Vector(3.5, 51.442152, 0), Vector(114.323824, 51.442152, 0)),
    Part.LineSegment(Vector(114.323824, 51.442152, 0), Vector(114.323824, 54.942152, 0)),
    Part.ArcOfCircle(Part.Circle(Vector(117.823824, 54.942152, 0), Vector(0, 0, 1), 3.5), math.radians(90), math.radians(180)),
    Part.LineSegment(Vector(117.823824, 58.442152, 0), Vector(0, 58.442152, 0)),
    Part.ArcOfCircle(Part.Circle(Vector(0, 54.942152, 0), Vector(0, 0, 1), 3.5), math.radians(0), math.radians(90)),
], False)
sketch11.addConstraint([
    Sketcher.Constraint("Tangent", 0, 2, 1, 2),
    Sketcher.Constraint("Tangent", 1, 1, 2, 1),
    Sketcher.Constraint("Tangent", 2, 2, 3, 2),
    Sketcher.Constraint("Tangent", 3, 1, 4, 1),
    Sketcher.Constraint("Coincident", 4, 2, 5, 1),
    Sketcher.Constraint("Coincident", 5, 2, 0, 1),
    Sketcher.Constraint("Coincident", 6, 2, 7, 1),
    Sketcher.Constraint("Coincident", 7, 2, 8, 1),
    Sketcher.Constraint("Tangent", 8, 2, 9, 2),
    Sketcher.Constraint("Tangent", 9, 1, 10, 1),
    Sketcher.Constraint("Tangent", 10, 2, 11, 2),
    Sketcher.Constraint("Tangent", 11, 1, 6, 1),
    Sketcher.Constraint("Vertical", 0),
    Sketcher.Constraint("Horizontal", 2),
    Sketcher.Constraint("Vertical", 4),
    Sketcher.Constraint("Horizontal", 5),
    Sketcher.Constraint("Vertical", 6),
    Sketcher.Constraint("Horizontal", 7),
    Sketcher.Constraint("Vertical", 8),
    Sketcher.Constraint("Horizontal", 10),
    Sketcher.Constraint("Coincident", 1, 3, -1, 1),
    Sketcher.Constraint("Equal", 1, 3),
    Sketcher.Constraint("Equal", 3, 9),
    Sketcher.Constraint("Equal", 9, 11),
    Sketcher.Constraint("PointOnObject", 11, 3, -2),
    Sketcher.Constraint("Vertical", 3, 3, 9, 3),
    Sketcher.Constraint("Equal", 4, 6),
    Sketcher.Constraint("Radius", 1, 3.5),
    Sketcher.Constraint("DistanceY", 0, 2, 0, 1, 3.5),
    Sketcher.Constraint("DistanceX", 2, 1, 2, 2, 117.823824),
    Sketcher.Constraint("DistanceY", -1, 1, 9, 3, 54.942152),
])
pocket4 = body.newObject("PartDesign::Pocket", "Pocket003")
pocket4.Profile = sketch11
pocket4.Length = 13

sketch12 = body.newObject("Sketcher::SketchObject", "Sketch011")
sketch12.AttachmentSupport = (doc.getObject("YZ_Plane"), [""])
sketch12.MapMode = "FlatFace"
sketch12.AttachmentOffset = App.Placement(Vector(0, 0, 128.911912), App.Rotation())
add_polygon(sketch12, [(47.442152, 20), (7.5, 20), (7.5, 5), (47.442152, 5)])
sketch12.addConstraint([
    Sketcher.Constraint("Horizontal", 0),
    Sketcher.Constraint("Vertical", 1),
    Sketcher.Constraint("Horizontal", 2),
    Sketcher.Constraint("Vertical", 3),
    Sketcher.Constraint("DistanceY", 1, 2, 1, 1, 15.0),
    Sketcher.Constraint("DistanceY", -1, 1, 0, 2, 20.0),
    Sketcher.Constraint("DistanceX", -1, 1, 0, 2, 7.5),
    Sketcher.Constraint("DistanceX", 0, 2, 0, 1, 39.942152),
])
pocket5 = body.newObject("PartDesign::Pocket", "Pocket004")
pocket5.Profile = sketch12
pocket5.Length = 13

sketch13 = body.newObject("Sketcher::SketchObject", "Sketch012")
sketch13.AttachmentSupport = (doc.getObject("XY_Plane"), [""])
sketch13.MapMode = "FlatFace"
add_polygon(sketch13, [(122.911912, 9.5), (-5.088088, 9.5), (-5.088088, 45.442152), (122.911912, 45.442152)])
sketch13.addConstraint([
    Sketcher.Constraint("Horizontal", 0),
    Sketcher.Constraint("Vertical", 1),
    Sketcher.Constraint("Horizontal", 2),
    Sketcher.Constraint("Vertical", 3),
    Sketcher.Constraint("DistanceX", 0, 2, 0, 1, 128.0),
    Sketcher.Constraint("DistanceY", -1, 1, 0, 2, 9.5),
    Sketcher.Constraint("DistanceY", 1, 1, 1, 2, 35.942152),
    Sketcher.Constraint("DistanceX", 0, 2, -1, 1, 5.088088),
])
pocket6 = body.newObject("PartDesign::Pocket", "Pocket005")
pocket6.Profile = sketch13
pocket6.Length = 66
pocket6.Reversed = True

sketch14 = body.newObject("Sketcher::SketchObject", "Sketch013")
sketch14.AttachmentSupport = (doc.getObject("XZ_Plane"), [""])
sketch14.MapMode = "FlatFace"
sketch14.AttachmentOffset = App.Placement(Vector(0, 0, -51.442152), App.Rotation())
add_polygon(sketch14, [(-1.088088, 5), (-1.088088, 20), (124.911912, 20), (124.911912, 5)])
sketch14.addConstraint([
    Sketcher.Constraint("Vertical", 0),
    Sketcher.Constraint("Horizontal", 1),
    Sketcher.Constraint("Vertical", 2),
    Sketcher.Constraint("Horizontal", 3),
    Sketcher.Constraint("DistanceX", 1, 1, 1, 2, 126.0),
    Sketcher.Constraint("DistanceY", 0, 1, 0, 2, 15.0),
    Sketcher.Constraint("DistanceY", -1, 1, 0, 2, 20.0),
    Sketcher.Constraint("DistanceX", 0, 2, -1, 1, 1.088088),
])
pocket7 = body.newObject("PartDesign::Pocket", "Pocket006")
pocket7.Profile = sketch14
pocket7.Length = 66
pocket7.Reversed = True

sketch15 = body.newObject("Sketcher::SketchObject", "Sketch014")
sketch15.AttachmentSupport = (doc.getObject("XZ_Plane"), [""])
sketch15.MapMode = "FlatFace"
sketch15.AttachmentOffset = App.Placement(Vector(0, 0, -51.442152), App.Rotation())
add_polygon(sketch15, [(-6.088088, 5), (-11.088088, 5), (-11.088088, 20), (-6.088088, 20)])
sketch15.addConstraint([
    Sketcher.Constraint("Horizontal", 0),
    Sketcher.Constraint("Vertical", 1),
    Sketcher.Constraint("Horizontal", 2),
    Sketcher.Constraint("Vertical", 3),
    Sketcher.Constraint("DistanceX", 0, 2, 0, 1, 5.0),
    Sketcher.Constraint("DistanceY", 1, 1, 1, 2, 15.0),
    Sketcher.Constraint("DistanceY", -1, 1, 0, 2, 5.0),
    Sketcher.Constraint("DistanceX", 0, 2, -1, 1, 11.088088),
])
pocket8 = body.newObject("PartDesign::Pocket", "Pocket007")
pocket8.Profile = sketch15
pocket8.Length = 66
pocket8.Reversed = True

doc.recompute()
